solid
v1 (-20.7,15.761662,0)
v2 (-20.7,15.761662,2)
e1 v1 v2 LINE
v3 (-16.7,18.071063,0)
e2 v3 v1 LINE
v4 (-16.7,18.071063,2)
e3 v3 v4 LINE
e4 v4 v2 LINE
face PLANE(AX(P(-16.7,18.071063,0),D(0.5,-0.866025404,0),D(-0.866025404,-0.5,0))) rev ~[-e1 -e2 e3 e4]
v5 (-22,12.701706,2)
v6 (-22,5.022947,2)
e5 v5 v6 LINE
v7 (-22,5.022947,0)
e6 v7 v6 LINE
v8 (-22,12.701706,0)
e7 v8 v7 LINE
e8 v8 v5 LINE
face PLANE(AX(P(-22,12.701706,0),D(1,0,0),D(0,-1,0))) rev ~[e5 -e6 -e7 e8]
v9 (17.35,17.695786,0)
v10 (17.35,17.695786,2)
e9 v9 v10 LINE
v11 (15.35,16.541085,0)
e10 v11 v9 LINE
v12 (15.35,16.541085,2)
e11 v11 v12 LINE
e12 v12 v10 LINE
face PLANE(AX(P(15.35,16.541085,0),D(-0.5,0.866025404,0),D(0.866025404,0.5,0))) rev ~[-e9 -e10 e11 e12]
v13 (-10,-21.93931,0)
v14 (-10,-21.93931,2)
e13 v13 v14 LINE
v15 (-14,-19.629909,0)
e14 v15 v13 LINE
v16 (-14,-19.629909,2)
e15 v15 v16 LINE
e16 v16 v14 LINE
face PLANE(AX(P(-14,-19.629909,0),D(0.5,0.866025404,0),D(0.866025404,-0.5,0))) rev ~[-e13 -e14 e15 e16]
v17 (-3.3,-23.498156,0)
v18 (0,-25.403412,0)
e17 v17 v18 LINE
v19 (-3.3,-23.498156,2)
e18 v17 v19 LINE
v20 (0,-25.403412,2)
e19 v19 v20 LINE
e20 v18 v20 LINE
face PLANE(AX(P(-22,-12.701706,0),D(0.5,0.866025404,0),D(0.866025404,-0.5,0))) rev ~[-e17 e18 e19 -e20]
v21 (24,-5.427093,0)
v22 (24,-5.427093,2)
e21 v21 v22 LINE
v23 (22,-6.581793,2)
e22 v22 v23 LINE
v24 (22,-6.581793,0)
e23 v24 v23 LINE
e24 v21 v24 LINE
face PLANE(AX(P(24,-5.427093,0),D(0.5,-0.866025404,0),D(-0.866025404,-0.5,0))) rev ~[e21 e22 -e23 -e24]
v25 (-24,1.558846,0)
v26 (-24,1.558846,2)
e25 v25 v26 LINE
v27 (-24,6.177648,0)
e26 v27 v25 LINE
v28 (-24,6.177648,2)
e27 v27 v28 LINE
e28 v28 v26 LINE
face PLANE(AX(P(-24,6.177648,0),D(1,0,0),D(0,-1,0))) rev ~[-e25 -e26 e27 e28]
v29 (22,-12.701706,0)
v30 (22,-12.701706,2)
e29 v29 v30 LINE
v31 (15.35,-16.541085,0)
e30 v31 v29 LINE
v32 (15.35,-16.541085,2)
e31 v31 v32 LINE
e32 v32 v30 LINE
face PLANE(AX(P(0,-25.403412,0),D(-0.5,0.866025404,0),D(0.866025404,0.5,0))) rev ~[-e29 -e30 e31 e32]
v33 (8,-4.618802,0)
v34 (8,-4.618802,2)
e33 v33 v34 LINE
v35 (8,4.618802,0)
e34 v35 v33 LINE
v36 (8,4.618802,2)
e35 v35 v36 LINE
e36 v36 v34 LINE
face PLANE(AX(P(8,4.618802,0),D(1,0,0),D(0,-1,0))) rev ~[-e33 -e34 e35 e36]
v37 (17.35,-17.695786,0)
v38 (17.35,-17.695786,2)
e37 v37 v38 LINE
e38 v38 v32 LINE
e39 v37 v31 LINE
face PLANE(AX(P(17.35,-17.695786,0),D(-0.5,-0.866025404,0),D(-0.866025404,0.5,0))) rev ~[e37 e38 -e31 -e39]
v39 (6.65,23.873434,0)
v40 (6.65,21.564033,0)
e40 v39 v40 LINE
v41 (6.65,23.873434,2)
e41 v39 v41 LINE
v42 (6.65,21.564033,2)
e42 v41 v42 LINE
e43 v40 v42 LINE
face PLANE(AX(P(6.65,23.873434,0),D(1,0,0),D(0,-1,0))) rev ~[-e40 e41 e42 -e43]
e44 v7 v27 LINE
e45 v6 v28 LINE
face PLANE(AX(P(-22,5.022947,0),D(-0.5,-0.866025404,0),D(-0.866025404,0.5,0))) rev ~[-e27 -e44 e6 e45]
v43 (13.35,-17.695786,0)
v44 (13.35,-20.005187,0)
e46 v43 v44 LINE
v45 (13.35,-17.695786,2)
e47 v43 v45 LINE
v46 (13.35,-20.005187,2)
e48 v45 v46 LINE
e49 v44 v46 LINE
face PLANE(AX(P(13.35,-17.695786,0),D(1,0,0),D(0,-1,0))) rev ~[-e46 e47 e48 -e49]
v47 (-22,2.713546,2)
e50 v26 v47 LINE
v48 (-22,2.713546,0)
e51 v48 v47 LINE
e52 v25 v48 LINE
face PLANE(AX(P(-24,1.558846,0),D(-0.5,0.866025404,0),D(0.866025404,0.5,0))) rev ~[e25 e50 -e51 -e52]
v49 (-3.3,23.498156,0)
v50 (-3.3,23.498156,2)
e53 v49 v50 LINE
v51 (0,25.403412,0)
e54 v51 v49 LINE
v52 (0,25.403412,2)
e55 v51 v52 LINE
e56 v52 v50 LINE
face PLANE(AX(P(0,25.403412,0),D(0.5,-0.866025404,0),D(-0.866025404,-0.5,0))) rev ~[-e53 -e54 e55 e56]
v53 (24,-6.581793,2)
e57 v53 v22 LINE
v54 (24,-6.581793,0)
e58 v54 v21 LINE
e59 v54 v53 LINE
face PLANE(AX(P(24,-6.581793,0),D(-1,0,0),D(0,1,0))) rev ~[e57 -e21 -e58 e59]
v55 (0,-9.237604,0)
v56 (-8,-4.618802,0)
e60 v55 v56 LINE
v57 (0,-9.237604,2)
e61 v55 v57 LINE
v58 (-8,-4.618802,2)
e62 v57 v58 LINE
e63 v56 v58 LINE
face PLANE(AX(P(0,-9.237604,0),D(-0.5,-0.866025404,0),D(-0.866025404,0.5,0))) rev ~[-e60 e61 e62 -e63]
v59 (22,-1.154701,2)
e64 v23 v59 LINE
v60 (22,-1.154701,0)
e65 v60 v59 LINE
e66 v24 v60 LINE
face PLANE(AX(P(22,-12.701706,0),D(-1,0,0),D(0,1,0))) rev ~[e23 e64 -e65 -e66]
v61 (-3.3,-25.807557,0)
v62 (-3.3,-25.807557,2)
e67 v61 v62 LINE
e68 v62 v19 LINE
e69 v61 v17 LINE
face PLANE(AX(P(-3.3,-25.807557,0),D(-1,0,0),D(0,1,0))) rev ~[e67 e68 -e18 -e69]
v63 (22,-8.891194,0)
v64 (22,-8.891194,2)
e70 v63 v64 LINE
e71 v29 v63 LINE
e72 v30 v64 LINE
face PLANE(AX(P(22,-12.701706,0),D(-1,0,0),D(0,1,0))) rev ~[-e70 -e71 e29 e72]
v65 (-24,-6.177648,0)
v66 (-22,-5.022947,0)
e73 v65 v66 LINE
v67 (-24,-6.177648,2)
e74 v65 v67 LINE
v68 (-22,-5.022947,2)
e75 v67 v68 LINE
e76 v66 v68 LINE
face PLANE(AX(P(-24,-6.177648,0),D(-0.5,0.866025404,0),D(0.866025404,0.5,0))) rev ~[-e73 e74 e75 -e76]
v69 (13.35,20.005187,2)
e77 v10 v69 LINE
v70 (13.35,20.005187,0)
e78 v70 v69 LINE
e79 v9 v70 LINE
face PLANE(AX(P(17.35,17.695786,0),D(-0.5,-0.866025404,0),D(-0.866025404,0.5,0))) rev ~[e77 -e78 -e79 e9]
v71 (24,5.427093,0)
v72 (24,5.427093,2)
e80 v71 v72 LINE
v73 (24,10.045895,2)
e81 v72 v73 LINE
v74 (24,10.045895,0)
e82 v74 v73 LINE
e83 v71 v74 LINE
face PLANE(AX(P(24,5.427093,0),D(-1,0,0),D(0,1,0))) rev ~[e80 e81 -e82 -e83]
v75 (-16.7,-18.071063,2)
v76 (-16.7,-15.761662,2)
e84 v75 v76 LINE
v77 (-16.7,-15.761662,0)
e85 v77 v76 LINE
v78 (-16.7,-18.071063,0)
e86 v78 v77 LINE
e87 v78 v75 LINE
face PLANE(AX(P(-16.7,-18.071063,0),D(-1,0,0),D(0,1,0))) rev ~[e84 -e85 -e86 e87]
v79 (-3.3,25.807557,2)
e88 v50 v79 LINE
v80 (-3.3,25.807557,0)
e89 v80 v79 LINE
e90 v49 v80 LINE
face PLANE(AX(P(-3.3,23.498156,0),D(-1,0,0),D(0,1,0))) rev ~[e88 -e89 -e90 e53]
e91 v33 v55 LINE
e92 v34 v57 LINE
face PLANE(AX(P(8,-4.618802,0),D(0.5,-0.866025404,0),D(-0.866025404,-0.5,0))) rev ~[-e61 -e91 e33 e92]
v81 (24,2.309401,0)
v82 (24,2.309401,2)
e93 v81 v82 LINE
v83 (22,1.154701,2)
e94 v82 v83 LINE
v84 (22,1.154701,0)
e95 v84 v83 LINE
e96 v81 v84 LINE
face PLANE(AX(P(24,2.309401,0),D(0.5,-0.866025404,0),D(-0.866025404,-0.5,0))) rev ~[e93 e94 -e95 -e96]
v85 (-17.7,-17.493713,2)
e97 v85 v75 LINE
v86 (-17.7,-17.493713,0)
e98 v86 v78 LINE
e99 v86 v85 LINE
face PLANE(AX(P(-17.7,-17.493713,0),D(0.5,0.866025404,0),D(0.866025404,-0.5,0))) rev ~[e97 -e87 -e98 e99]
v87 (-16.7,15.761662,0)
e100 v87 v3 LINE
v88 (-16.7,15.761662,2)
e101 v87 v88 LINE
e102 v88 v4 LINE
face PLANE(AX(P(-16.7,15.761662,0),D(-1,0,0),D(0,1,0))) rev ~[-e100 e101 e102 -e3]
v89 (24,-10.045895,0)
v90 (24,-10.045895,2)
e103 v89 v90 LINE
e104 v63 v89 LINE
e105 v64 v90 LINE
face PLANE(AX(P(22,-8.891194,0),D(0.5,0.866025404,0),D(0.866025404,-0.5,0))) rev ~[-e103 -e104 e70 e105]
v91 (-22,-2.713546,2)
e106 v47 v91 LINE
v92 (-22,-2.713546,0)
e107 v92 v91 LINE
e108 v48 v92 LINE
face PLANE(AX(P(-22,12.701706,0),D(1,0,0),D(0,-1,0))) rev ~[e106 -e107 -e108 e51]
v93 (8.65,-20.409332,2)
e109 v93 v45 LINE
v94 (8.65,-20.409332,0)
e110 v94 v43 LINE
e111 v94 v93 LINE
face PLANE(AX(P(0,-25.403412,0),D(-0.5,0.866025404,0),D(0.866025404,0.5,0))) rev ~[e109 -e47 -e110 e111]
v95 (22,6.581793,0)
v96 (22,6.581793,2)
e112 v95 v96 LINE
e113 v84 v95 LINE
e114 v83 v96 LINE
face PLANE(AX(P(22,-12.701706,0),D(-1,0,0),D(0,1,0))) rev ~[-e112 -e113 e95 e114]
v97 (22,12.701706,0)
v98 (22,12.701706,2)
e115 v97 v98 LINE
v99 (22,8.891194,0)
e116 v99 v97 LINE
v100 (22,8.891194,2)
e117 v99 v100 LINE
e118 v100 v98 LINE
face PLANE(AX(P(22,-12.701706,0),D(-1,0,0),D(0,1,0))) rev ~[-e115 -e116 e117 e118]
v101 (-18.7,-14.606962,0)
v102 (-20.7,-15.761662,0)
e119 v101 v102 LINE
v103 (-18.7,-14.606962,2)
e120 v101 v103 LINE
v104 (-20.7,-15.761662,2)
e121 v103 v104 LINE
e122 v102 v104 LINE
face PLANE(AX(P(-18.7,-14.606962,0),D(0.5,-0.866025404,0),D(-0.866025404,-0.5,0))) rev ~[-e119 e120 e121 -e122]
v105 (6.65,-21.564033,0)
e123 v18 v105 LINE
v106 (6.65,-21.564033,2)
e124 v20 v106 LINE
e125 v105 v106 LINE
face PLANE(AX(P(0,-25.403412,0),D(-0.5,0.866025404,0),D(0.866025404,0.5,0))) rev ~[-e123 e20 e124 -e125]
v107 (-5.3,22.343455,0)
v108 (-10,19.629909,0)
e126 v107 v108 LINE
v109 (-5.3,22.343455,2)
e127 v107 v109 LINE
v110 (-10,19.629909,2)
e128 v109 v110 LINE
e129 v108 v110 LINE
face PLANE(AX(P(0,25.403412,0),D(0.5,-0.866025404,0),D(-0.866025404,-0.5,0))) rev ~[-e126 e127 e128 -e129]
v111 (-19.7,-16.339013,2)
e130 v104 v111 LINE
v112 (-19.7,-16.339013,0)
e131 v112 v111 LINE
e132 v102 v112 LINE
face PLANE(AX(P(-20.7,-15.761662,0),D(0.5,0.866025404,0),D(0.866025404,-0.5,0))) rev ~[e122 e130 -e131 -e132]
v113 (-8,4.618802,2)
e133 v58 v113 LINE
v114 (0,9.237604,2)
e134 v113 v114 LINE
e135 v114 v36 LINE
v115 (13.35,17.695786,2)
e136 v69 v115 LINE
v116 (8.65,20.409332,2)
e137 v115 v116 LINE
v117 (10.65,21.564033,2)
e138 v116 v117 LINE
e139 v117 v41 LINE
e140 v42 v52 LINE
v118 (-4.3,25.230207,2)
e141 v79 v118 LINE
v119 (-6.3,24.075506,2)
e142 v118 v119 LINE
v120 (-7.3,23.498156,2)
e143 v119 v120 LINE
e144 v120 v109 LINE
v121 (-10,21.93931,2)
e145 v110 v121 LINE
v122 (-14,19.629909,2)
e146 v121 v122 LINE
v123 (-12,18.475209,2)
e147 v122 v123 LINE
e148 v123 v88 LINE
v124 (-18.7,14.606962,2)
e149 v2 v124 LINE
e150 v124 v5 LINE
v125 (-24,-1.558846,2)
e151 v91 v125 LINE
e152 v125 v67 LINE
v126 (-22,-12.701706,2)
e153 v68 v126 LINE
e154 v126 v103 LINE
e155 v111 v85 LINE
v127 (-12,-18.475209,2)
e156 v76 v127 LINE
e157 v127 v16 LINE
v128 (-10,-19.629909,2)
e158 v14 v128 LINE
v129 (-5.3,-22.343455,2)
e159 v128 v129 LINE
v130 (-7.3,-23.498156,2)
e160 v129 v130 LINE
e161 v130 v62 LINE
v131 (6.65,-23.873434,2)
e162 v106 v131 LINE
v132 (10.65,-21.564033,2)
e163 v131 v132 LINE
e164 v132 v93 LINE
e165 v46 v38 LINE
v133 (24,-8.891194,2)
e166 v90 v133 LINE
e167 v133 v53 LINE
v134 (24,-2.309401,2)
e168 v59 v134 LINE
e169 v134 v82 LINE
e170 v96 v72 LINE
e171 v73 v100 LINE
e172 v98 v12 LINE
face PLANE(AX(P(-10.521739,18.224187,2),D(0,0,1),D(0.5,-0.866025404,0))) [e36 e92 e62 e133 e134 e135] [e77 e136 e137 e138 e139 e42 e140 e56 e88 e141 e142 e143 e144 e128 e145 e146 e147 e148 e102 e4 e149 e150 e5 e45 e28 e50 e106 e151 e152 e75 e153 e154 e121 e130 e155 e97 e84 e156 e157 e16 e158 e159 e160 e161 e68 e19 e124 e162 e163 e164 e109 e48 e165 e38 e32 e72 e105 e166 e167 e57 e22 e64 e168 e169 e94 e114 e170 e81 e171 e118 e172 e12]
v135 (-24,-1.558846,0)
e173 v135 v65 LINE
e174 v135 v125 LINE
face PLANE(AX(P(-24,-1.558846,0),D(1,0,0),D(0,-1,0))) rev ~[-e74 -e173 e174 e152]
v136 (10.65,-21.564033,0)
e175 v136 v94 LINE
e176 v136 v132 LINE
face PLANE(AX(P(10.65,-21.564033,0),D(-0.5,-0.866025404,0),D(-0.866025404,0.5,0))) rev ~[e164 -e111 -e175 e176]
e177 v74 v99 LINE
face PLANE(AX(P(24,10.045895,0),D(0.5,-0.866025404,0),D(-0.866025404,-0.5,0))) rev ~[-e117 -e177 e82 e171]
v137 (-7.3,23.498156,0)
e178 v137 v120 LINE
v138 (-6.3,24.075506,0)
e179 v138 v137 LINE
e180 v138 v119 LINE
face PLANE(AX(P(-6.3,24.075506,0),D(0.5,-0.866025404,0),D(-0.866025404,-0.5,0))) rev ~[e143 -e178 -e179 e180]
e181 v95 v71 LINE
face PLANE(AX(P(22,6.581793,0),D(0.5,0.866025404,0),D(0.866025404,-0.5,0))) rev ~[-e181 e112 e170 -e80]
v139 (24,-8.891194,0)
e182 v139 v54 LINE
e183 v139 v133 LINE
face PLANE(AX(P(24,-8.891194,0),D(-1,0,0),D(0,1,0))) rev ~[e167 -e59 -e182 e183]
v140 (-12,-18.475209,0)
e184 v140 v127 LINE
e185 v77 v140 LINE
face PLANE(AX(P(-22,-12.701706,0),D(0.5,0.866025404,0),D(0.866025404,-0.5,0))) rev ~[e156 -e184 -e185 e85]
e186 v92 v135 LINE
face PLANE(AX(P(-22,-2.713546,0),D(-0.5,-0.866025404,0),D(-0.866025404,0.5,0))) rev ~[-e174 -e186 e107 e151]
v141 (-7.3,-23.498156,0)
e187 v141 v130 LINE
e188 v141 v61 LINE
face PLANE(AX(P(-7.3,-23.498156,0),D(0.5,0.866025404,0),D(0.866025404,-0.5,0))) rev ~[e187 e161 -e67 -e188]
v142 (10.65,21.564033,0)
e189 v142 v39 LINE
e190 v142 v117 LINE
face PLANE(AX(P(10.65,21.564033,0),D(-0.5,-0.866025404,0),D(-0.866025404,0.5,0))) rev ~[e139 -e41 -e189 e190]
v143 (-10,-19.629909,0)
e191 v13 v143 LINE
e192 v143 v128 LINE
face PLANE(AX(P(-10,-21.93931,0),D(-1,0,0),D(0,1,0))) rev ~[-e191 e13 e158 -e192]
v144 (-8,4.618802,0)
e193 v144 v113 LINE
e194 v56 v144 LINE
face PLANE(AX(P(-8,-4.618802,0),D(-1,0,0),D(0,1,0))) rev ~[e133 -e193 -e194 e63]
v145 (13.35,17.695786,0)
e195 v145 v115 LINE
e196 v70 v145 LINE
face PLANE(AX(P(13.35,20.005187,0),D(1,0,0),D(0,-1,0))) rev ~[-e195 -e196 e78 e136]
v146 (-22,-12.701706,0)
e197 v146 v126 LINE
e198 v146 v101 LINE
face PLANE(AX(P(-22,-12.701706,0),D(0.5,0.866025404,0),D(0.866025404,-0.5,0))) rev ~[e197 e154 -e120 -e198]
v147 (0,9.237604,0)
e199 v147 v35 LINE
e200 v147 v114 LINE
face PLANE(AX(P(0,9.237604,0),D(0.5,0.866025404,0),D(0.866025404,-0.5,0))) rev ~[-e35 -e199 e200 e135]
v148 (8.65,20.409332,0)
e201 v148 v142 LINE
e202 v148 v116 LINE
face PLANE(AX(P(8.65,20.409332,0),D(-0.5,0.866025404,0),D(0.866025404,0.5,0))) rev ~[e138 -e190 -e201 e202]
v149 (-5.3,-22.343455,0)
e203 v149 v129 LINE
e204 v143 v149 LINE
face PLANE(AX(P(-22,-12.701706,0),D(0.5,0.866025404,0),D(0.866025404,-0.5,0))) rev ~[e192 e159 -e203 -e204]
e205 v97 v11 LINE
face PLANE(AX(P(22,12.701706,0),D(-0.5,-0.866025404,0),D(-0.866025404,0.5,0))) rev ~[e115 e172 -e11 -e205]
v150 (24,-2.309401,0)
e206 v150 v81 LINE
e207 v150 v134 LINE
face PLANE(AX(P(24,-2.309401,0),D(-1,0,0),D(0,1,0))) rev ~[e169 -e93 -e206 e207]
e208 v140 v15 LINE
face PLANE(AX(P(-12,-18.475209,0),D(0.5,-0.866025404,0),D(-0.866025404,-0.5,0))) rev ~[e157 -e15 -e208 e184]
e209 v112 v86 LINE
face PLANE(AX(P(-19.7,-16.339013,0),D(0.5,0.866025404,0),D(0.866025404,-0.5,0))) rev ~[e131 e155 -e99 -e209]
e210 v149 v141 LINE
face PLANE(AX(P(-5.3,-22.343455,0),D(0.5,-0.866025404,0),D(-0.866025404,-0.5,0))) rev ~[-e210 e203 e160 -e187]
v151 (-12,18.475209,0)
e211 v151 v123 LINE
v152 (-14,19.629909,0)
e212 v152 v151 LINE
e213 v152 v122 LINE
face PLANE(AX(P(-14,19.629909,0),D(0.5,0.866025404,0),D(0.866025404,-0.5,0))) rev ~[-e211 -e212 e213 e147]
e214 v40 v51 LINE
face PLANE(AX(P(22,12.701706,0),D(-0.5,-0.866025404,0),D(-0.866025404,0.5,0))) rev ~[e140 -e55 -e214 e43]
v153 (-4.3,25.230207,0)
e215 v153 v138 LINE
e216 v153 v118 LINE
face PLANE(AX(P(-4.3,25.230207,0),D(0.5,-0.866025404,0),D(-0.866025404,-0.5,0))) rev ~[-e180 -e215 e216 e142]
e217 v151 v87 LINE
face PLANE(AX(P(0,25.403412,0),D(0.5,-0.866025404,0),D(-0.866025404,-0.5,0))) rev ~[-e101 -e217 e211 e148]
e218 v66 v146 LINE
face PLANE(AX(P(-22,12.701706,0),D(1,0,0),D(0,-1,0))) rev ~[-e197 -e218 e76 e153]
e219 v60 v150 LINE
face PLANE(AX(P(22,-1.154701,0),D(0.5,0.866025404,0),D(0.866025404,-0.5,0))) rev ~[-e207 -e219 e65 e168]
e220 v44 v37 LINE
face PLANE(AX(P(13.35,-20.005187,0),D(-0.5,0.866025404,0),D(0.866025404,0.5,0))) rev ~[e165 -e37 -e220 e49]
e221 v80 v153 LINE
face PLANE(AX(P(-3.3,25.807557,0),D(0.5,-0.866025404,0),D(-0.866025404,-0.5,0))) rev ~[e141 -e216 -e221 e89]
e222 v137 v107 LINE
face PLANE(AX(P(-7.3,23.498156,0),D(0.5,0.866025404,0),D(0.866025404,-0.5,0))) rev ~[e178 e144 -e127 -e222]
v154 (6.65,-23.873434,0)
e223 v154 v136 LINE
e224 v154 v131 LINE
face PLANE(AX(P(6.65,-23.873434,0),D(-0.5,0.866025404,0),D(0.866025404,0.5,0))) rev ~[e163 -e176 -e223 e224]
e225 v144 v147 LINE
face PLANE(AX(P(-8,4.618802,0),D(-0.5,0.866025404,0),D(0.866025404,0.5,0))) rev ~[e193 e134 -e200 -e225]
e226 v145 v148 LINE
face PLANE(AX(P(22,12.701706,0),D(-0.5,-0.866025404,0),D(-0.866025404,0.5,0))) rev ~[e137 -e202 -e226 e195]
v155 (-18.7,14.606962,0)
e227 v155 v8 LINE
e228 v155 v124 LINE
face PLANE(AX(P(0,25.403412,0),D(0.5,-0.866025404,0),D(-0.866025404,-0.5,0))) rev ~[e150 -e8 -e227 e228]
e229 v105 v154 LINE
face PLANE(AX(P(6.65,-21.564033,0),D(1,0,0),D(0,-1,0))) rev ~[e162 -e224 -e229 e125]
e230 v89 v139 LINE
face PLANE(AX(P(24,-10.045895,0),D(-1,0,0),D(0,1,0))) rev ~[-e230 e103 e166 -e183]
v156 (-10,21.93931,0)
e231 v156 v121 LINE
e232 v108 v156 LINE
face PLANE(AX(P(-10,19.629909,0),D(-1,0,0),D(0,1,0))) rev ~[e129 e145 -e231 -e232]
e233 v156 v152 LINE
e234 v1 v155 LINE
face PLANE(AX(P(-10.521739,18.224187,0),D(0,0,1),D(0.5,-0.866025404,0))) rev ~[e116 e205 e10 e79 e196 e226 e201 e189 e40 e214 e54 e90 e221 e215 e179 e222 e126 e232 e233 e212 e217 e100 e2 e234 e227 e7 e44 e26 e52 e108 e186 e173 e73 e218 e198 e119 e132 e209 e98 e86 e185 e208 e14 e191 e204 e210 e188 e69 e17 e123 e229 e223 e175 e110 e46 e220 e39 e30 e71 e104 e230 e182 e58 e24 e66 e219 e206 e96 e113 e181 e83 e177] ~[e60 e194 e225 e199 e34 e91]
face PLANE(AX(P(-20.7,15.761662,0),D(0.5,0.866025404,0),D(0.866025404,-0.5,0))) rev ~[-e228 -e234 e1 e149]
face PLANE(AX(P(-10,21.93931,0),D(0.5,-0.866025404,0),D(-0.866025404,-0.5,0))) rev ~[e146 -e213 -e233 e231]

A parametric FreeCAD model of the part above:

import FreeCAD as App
import Part
import Sketcher
Q = App.Units.Quantity


def add_polygon(sketch, points):
    """Adds a closed chain of lines whose ends are joined by coincident constraints."""
    first, n = sketch.GeometryCount, len(points)
    for a, b in zip(points, points[1:] + points[:1]):
        sketch.addGeometry(Part.LineSegment(App.Vector(*a, 0), App.Vector(*b, 0)), False)
    for i in range(n):
        sketch.addConstraint(Sketcher.Constraint("Coincident", first + i, 2, first + (i + 1) % n, 1))

doc = App.newDocument("Part")
body = doc.addObject("PartDesign::Body", "Body")

sketch1 = doc.addObject("Sketcher::SketchObject", "Sketch")
body.addObject(sketch1)
sketch1.AttachmentSupport = (doc.XY_Plane, [""])
sketch1.MapMode = "FlatFace"
add_polygon(sketch1, [(-8, 5), (-20, 12), (-20, -12), (-8, -5)])
sketch1.addConstraint([
    Sketcher.Constraint("Vertical", 1),
    Sketcher.Constraint("Vertical", 3),
    Sketcher.Constraint("Equal", 0, 2),
    Sketcher.Constraint("Angle", 0, Q("150 deg")),
    Sketcher.Constraint("DistanceX", 0, 2, -1, 1, 20.0),
    Sketcher.Constraint("DistanceX", 2, 2, -1, 1, 8.0),
    Sketcher.Constraint("DistanceY", 1, 2, 1, 1, 23.094011),
    Sketcher.Constraint("DistanceY", -1, 1, 0, 2, 11.547005),
])
pad1 = doc.addObject("PartDesign::Pad", "Pad")
body.addObject(pad1)
pad1.Profile = sketch1
pad1.Length = 2

sketch2 = doc.addObject("Sketcher::SketchObject", "Sketch001")
body.addObject(sketch2)
sketch2.AttachmentSupport = (doc.XY_Plane, [""])
sketch2.MapMode = "FlatFace"
add_polygon(sketch2, [(-20, -11.5), (-20, 11.5), (-22, 12.7), (-22, -12.7)])
sketch2.addConstraint([
    Sketcher.Constraint("Vertical", 0),
    Sketcher.Constraint("Vertical", 2),
    Sketcher.Constraint("Equal", 1, 3),
    Sketcher.Constraint("Angle", 1, Q("150 deg")),
    Sketcher.Constraint("DistanceX", 0, 2, -1, 1, 20.0),
    Sketcher.Constraint("DistanceX", 1, 2, -1, 1, 22.0),
    Sketcher.Constraint("DistanceY", 0, 1, 0, 2, 23.094011),
    Sketcher.Constraint("DistanceY", -1, 1, 0, 2, 11.547005),
])
pad2 = doc.addObject("PartDesign::Pad", "Pad001")
body.addObject(pad2)
pad2.Profile = sketch2
pad2.Length = 2
body2 = doc.addObject("PartDesign::Body", "Body001")
doc.recompute()

body2.BaseFeature = body
doc.recompute()

body.Placement = App.Placement(App.Vector(0, 0, 0), App.Rotation(App.Vector(0, 0, 1), 60))
boolean = doc.addObject("PartDesign::Boolean", "Boolean")
body2.addObject(boolean)
boolean.Type = "Fuse"
boolean.addObjects([body])

sketch3 = doc.addObject("Sketcher::SketchObject", "Sketch002")
body2.addObject(sketch3)
sketch3.AttachmentSupport = (doc.getObject("XY_Plane001"), [""])
sketch3.MapMode = "FlatFace"
add_polygon(sketch3, [(-24, 1.6), (-22, 2.7), (-22, 5), (-24, 6.2)])
add_polygon(sketch3, [(-24, -6.2), (-22, -5), (-22, -2.7), (-24, -1.6)])
add_polygon(sketch3, [(-19.7, -16.3), (-17.7, -17.5), (-16.7, -18.1), (-16.7, -15.8), (-18.7, -14.6), (-20.7, -15.8)])
add_polygon(sketch3, [(-10, -21.9), (-10, -19.6), (-12, -18.5), (-14, -19.6)])
add_polygon(sketch3, [(-7.3, -23.5), (-3.3, -25.8), (-3.3, -23.5), (-5.3, -22.3)])
sketch3.addConstraint([
    Sketcher.Constraint("Vertical", 1),
    Sketcher.Constraint("Vertical", 3),
    Sketcher.Constraint("Vertical", 5),
    Sketcher.Constraint("Vertical", 7),
    Sketcher.Constraint("Vertical", 10),
    Sketcher.Constraint("Vertical", 14),
    Sketcher.Constraint("Vertical", 19),
    Sketcher.Constraint("Symmetric", 1, 2, 4, 2, -1),
    Sketcher.Constraint("Symmetric", 3, 2, 6, 2, -1),
    Sketcher.Constraint("Parallel", 0, 4),
    Sketcher.Constraint("Parallel", 2, 6),
    Sketcher.Constraint("Parallel", 6, 8),
    Sketcher.Constraint("Parallel", 8, 9),
    Sketcher.Constraint("Parallel", 9, 11),
    Sketcher.Constraint("Parallel", 4, 12),
    Sketcher.Constraint("Parallel", 11, 13),
    Sketcher.Constraint("Parallel", 13, 15),
    Sketcher.Constraint("Parallel", 12, 16),
    Sketcher.Constraint("Parallel", 15, 17),
    Sketcher.Constraint("Parallel", 17, 18),
    Sketcher.Constraint("Parallel", 18, 20),
    Sketcher.Constraint("Parallel", 16, 21),
    Sketcher.Constraint("Horizontal", 10, 2, 12, 2),
    Sketcher.Constraint("Horizontal", 14, 2, 16, 2),
    Sketcher.Constraint("Horizontal", 19, 2, 21, 2),
    Sketcher.Constraint("Equal", 1, 5),
    Sketcher.Constraint("Equal", 5, 10),
    Sketcher.Constraint("Equal", 10, 14),
    Sketcher.Constraint("Equal", 14, 19),
    Sketcher.Constraint("Equal", 6, 8),
    Sketcher.Constraint("Equal", 8, 11),
    Sketcher.Constraint("Equal", 9, 13),
    Sketcher.Constraint("Angle", 0, Q("30 deg")),
    Sketcher.Constraint("DistanceX", 0, 2, -1, 1, 22.0),
    Sketcher.Constraint("DistanceX", 2, 2, -1, 1, 24.0),
    Sketcher.Constraint("DistanceX", 14, 2, -1, 1, 10.0),
    Sketcher.Constraint("DistanceX", 8, 2, -1, 1, 17.7),
    Sketcher.Constraint("DistanceX", 18, 2, -1, 1, 3.3),
    Sketcher.Constraint("DistanceY", 11, 2, -1, 1, 14.606962),
    Sketcher.Constraint("DistanceY", 14, 2, -1, 1, 19.629909),
    Sketcher.Constraint("DistanceY", 5, 2, 3, 2, 4.272392),
    Sketcher.Constraint("DistanceY", 18, 2, 15, 2, 7.332348),
])
pad3 = doc.addObject("PartDesign::Pad", "Pad002")
body2.addObject(pad3)
pad3.Profile = sketch3
pad3.Type = "UpToLast"
body3 = doc.addObject("PartDesign::Body", "Body002")
doc.recompute()

body3.BaseFeature = body2
doc.recompute()

body4 = doc.addObject("PartDesign::Body", "Body003")
body4.BaseFeature = body2
body4.Placement = App.Placement(App.Vector(0, 0, 0), App.Rotation(App.Vector(0, 0, 1), 120))
boolean2 = doc.addObject("PartDesign::Boolean", "Boolean001")
body3.addObject(boolean2)
boolean2.Type = "Fuse"
boolean2.addObjects([body4])
doc.recompute()

body2.Placement = App.Placement(App.Vector(0, 0, 0), App.Rotation(App.Vector(0, 0, 1), 240))
boolean3 = doc.addObject("PartDesign::Boolean", "Boolean002")
body3.addObject(boolean3)
boolean3.Type = "Fuse"
boolean3.addObjects([body2])

doc.recompute()
